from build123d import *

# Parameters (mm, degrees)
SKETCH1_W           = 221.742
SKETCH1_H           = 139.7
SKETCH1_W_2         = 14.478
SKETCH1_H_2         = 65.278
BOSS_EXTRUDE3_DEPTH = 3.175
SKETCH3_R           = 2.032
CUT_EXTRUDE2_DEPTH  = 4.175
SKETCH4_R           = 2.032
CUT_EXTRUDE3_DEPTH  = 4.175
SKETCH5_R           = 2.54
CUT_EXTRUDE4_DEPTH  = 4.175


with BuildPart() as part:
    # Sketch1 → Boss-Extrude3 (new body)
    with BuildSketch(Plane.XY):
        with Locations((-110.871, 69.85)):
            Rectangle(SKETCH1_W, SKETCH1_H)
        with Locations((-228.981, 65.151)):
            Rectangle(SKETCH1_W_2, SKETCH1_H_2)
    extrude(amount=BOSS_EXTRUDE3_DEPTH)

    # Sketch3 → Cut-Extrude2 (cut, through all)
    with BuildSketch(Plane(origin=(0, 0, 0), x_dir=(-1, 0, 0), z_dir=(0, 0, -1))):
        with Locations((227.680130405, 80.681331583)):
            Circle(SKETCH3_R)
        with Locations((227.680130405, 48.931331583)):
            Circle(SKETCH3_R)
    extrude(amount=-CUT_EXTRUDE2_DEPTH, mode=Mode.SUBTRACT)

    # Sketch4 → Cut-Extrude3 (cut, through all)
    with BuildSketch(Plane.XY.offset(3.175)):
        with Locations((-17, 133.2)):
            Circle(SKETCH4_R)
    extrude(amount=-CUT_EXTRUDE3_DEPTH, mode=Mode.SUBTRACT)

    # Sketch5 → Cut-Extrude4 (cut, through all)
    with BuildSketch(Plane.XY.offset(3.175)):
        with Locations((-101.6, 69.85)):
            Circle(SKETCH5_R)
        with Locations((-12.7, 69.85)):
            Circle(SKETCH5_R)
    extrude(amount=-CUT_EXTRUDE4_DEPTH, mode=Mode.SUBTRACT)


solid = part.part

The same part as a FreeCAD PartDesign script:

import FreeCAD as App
import Part
import Sketcher
from FreeCAD import Vector
Q = App.Units.Quantity

doc = App.newDocument("Part")
body = doc.addObject("PartDesign::Body", "Body")

# Sketch on XY plane
sketch1 = doc.addObject("Sketcher::SketchObject", "Sketch")
body.addObject(sketch1)
sketch1.AttachmentSupport = (doc.XY_Plane, [""])
sketch1.MapMode = "FlatFace"
sketch1.addGeometry([
    Part.LineSegment(Vector(-222, 33, 0), Vector(-222, 0, 0)),  # 0
    Part.LineSegment(Vector(-222, 0, 0), Vector(0, 0, 0)),  # 1
    Part.LineSegment(Vector(0, 0, 0), Vector(0, 140, 0)),  # 2
    Part.LineSegment(Vector(0, 140, 0), Vector(-222, 140, 0)),  # 3
    Part.LineSegment(Vector(-222, 140, 0), Vector(-222, 98, 0)),  # 4
    Part.LineSegment(Vector(-222, 98, 0), Vector(-236, 98, 0)),  # 5
    Part.LineSegment(Vector(-236, 98, 0), Vector(-236, 33, 0)),  # 6
    Part.LineSegment(Vector(-236, 33, 0), Vector(-222, 33, 0)),  # 7
], False)
sketch1.addConstraint([
    Sketcher.Constraint("Coincident", 0, 2, 1, 1),
    Sketcher.Constraint("Coincident", 1, 2, 2, 1),
    Sketcher.Constraint("Coincident", 2, 2, 3, 1),
    Sketcher.Constraint("Coincident", 3, 2, 4, 1),
    Sketcher.Constraint("Coincident", 4, 2, 5, 1),
    Sketcher.Constraint("Coincident", 5, 2, 6, 1),
    Sketcher.Constraint("Coincident", 6, 2, 7, 1),
    Sketcher.Constraint("Coincident", 7, 2, 0, 1),
    Sketcher.Constraint("Vertical", 0),
    Sketcher.Constraint("Horizontal", 1),
    Sketcher.Constraint("Vertical", 2),
    Sketcher.Constraint("Horizontal", 3),
    Sketcher.Constraint("Vertical", 4),
    Sketcher.Constraint("Horizontal", 5),
    Sketcher.Constraint("Vertical", 6),
    Sketcher.Constraint("Horizontal", 7),
    Sketcher.Constraint("Coincident", 1, 2, -1, 1),
    Sketcher.Constraint("Vertical", 0, 2, 3, 2),
    Sketcher.Constraint("DistanceY", 2, 1, 2, 2, Q("5.5 in")),
    Sketcher.Constraint("DistanceX", 1, 1, 1, 2, Q("8.73 in")),
    Sketcher.Constraint("DistanceX", 5, 2, 5, 1, Q("0.57 in")),
    Sketcher.Constraint("DistanceY", 0, 2, 0, 1, Q("1.28 in")),
    Sketcher.Constraint("DistanceY", 4, 2, 4, 1, Q("1.65 in")),
])
pad1 = doc.addObject("PartDesign::Pad", "Pad")
body.addObject(pad1)
pad1.Profile = sketch1
pad1.Length = Q("0.125 in")

# Sketch on XY plane
sketch2 = doc.addObject("Sketcher::SketchObject", "Sketch001")
body.addObject(sketch2)
sketch2.AttachmentSupport = (doc.XY_Plane, [""])
sketch2.MapMode = "FlatFace"
sketch2.addGeometry([
    Part.Circle(Vector(-227.7, 80.7, 0), Vector(0, 0, 1), 2),
    Part.Circle(Vector(-227.7, 48.9, 0), Vector(0, 0, 1), 2),
], False)
sketch2.addConstraint([
    Sketcher.Constraint("Equal", 0, 1),
    Sketcher.Constraint("Vertical", 0, 3, 1, 3),
    Sketcher.Constraint("Diameter", 0, Q("0.16 in")),
    Sketcher.Constraint("DistanceY", 1, 3, 0, 3, Q("1.25 in")),
    Sketcher.Constraint("DistanceX", 0, 3, -1, 1, Q("227.68013 mm")),
    Sketcher.Constraint("DistanceY", -1, 1, 0, 3, Q("80.681332 mm")),
])
pocket1 = doc.addObject("PartDesign::Pocket", "Pocket")
body.addObject(pocket1)
pocket1.Profile = sketch2
pocket1.Type = "ThroughAll"
pocket1.Reversed = True

# Sketch on XY plane
sketch3 = doc.addObject("Sketcher::SketchObject", "Sketch002")
body.addObject(sketch3)
sketch3.AttachmentSupport = (doc.XY_Plane, [""])
sketch3.MapMode = "FlatFace"
sketch3.AttachmentOffset = App.Placement(Vector(0, 0, 0.125 * 25.4), App.Rotation())
sketch3.addGeometry(Part.Circle(Vector(-17, 133.2, 0), Vector(0, 0, 1), 2), False)
sketch3.addConstraint([
    Sketcher.Constraint("Diameter", 0, Q("0.16 in")),
    Sketcher.Constraint("DistanceX", 0, 3, -1, 1, Q("17 mm")),
    Sketcher.Constraint("DistanceY", -1, 1, 0, 3, Q("133.2 mm")),
])
pocket2 = doc.addObject("PartDesign::Pocket", "Pocket001")
body.addObject(pocket2)
pocket2.Profile = sketch3
pocket2.Type = "ThroughAll"

# Sketch on XY plane
sketch4 = doc.addObject("Sketcher::SketchObject", "Sketch003")
body.addObject(sketch4)
sketch4.AttachmentSupport = (doc.XY_Plane, [""])
sketch4.MapMode = "FlatFace"
sketch4.AttachmentOffset = App.Placement(Vector(0, 0, 0.125 * 25.4), App.Rotation())
sketch4.addGeometry([
    Part.Circle(Vector(-101.6, 69.8, 0), Vector(0, 0, 1), 2.5),
    Part.Circle(Vector(-12.7, 69.8, 0), Vector(0, 0, 1), 2.5),
], False)
sketch4.addConstraint([
    Sketcher.Constraint("Equal", 0, 1),
    Sketcher.Constraint("Horizontal", 0, 3, 1, 3),
    Sketcher.Constraint("Diameter", 0, Q("0.2 in")),
    Sketcher.Constraint("DistanceX", 0, 3, -1, 1, Q("4 in")),
    Sketcher.Constraint("DistanceX", 1, 3, -1, 1, Q("0.5 in")),
    Sketcher.Constraint("DistanceY", -1, 1, 0, 3, Q("2.75 in")),
])
pocket3 = doc.addObject("PartDesign::Pocket", "Pocket002")
body.addObject(pocket3)
pocket3.Profile = sketch4
pocket3.Type = "ThroughAll"

doc.recompute()
